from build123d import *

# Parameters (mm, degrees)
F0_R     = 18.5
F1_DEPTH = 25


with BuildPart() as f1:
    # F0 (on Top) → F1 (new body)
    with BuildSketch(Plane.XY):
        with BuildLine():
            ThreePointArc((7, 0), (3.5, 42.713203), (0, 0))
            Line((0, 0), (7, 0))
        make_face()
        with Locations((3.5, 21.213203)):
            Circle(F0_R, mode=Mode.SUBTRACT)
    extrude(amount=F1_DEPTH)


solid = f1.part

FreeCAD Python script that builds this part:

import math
import FreeCAD as App
import Part
import Sketcher

V = App.Vector

doc = App.newDocument("Part")
body = doc.addObject("PartDesign::Body", "Body")

# Sketch on XY plane
sketch1 = body.newObject("Sketcher::SketchObject", "Sketch")
sketch1.AttachmentSupport = (doc.getObject("XY_Plane"), [""])
sketch1.MapMode = "FlatFace"
sketch1.addGeometry([
    Part.ArcOfCircle(Part.Circle(V(3.5, 21.213203, 0), V(0, 0, 1), 21.5), math.radians(-80.631084), math.radians(260.631084)),
    Part.LineSegment(V(0, 0, 0), V(7, 0, 0)),
    Part.Circle(V(3.5, 21.213203, 0), V(0, 0, 1), 18.5),
], False)
sketch1.addConstraint([
    Sketcher.Constraint("Coincident", 0, 1, 1, 2),
    Sketcher.Constraint("Coincident", 1, 1, 0, 2),
    Sketcher.Constraint("Horizontal", 1),
    Sketcher.Constraint("Coincident", 1, 1, -1, 1),
    Sketcher.Constraint("Coincident", 2, 3, 0, 3),
    Sketcher.Constraint("Diameter", 2, 37.0),
    Sketcher.Constraint("Radius", 0, 21.5),
    Sketcher.Constraint("DistanceX", 1, 1, 1, 2, 7.0),
])
pad1 = body.newObject("PartDesign::Pad", "Pad")
pad1.Profile = sketch1
pad1.Length = 25

doc.recompute()
